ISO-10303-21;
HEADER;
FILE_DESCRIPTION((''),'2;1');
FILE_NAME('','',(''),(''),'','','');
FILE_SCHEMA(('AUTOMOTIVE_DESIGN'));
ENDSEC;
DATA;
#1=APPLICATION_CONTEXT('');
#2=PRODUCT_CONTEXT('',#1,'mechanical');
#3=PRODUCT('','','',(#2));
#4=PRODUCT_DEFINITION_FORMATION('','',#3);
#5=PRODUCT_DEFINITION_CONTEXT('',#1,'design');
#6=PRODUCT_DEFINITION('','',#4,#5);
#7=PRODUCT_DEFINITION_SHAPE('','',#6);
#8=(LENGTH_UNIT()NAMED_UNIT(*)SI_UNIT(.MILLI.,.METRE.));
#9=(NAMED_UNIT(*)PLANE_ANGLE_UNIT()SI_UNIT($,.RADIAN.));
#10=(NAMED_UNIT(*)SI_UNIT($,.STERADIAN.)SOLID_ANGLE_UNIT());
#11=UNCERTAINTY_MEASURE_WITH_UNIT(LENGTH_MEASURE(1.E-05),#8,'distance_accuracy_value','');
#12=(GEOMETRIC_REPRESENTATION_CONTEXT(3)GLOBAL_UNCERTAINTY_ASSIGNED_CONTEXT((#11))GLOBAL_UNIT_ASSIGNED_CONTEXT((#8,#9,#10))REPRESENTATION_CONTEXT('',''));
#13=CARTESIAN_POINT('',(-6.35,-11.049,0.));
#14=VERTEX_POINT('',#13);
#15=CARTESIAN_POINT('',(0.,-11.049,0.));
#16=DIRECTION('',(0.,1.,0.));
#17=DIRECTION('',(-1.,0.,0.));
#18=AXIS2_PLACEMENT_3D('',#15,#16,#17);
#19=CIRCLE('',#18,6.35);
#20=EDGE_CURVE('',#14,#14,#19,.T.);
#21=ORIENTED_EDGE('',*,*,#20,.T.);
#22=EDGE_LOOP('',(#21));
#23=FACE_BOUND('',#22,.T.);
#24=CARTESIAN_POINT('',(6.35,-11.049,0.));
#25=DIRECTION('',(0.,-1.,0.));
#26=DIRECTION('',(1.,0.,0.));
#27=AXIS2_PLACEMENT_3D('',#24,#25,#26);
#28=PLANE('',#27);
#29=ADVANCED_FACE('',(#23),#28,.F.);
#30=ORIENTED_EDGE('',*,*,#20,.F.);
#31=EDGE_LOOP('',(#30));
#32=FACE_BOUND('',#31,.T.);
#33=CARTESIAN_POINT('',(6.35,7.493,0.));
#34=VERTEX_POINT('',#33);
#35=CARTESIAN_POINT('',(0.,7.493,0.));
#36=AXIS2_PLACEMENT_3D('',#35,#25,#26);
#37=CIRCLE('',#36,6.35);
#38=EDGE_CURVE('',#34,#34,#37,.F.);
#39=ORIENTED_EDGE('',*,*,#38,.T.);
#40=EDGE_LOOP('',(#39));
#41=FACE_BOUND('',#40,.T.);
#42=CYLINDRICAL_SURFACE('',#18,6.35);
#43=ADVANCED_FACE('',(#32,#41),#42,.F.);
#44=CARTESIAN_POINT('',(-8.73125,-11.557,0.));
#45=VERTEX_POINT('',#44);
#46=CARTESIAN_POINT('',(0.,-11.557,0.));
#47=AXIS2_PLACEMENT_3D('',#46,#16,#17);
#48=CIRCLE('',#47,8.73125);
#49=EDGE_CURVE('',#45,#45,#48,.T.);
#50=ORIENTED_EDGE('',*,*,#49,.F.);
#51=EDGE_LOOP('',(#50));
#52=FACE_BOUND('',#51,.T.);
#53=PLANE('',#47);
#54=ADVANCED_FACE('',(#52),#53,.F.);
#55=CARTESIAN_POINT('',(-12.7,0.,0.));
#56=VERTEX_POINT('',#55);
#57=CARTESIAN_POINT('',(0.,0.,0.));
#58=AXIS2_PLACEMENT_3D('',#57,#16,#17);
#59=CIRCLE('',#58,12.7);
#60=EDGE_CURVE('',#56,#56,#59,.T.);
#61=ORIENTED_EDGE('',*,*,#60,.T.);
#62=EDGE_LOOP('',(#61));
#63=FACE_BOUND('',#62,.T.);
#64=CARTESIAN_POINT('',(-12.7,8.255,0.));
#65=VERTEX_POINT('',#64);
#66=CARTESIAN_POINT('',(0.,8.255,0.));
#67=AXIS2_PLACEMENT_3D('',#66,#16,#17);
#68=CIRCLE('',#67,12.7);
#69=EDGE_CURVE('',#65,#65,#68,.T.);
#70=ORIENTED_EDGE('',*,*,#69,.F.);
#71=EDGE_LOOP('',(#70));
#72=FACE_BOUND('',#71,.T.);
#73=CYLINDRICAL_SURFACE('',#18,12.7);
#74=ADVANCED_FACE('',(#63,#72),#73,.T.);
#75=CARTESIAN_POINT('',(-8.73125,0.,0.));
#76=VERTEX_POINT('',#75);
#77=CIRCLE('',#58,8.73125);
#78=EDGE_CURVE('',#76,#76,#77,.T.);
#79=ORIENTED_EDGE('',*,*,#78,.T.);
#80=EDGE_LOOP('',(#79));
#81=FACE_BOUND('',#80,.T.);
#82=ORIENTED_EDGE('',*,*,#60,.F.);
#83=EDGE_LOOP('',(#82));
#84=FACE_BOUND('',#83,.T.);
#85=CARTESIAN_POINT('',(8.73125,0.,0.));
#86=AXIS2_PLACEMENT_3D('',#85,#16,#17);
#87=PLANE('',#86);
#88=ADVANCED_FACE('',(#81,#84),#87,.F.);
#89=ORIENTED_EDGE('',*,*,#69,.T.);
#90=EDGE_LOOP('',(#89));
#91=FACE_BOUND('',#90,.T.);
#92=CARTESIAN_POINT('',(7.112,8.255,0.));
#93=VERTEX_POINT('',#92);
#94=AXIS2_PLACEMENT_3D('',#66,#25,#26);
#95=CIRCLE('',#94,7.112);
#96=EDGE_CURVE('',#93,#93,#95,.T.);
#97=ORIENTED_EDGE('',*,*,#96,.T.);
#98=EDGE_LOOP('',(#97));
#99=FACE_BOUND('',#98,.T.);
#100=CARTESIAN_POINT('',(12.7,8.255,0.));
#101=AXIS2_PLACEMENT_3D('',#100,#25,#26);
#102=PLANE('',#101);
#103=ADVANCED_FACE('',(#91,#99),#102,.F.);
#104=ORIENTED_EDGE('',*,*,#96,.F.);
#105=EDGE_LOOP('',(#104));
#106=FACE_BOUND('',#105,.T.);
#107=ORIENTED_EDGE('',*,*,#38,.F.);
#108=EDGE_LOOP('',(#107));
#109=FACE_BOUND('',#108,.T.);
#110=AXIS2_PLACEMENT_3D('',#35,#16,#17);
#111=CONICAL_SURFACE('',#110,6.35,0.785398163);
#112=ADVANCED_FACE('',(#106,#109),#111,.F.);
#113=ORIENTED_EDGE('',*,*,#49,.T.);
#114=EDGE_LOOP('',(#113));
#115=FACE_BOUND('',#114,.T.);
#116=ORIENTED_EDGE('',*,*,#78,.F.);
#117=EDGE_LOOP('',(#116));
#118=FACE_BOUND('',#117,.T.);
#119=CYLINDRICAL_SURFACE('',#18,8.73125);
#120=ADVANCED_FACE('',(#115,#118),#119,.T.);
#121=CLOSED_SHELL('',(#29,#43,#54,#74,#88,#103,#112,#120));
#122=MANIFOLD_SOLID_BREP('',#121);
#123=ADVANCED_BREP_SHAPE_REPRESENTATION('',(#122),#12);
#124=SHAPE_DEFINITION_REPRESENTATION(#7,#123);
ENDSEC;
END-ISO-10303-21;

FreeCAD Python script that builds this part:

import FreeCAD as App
import Part
import Sketcher

V = App.Vector
Q = App.Units.Quantity


def edges_at(feature, points):
    """Names of the edges that pass closest to the given points."""
    edges = feature.Shape.Edges
    near = lambda p: min(range(len(edges)), key=lambda i: edges[i].distToShape(Part.Vertex(*p))[0])
    return sorted({f"Edge{near(p) + 1}" for p in points})


def add_polygon(sketch, points):
    """Adds a closed chain of lines whose ends are joined by coincident constraints."""
    first, n = sketch.GeometryCount, len(points)
    for a, b in zip(points, points[1:] + points[:1]):
        sketch.addGeometry(Part.LineSegment(App.Vector(*a, 0), App.Vector(*b, 0)), False)
    for i in range(n):
        sketch.addConstraint(Sketcher.Constraint("Coincident", first + i, 2, first + (i + 1) % n, 1))

doc = App.newDocument("Part")
params = doc.addObject("Spreadsheet::Sheet", "Params")
for row, (alias, value) in enumerate([
    ("sketch1_width", "0.25 in"),
    ("sketch1_height", "0.76 in"),
    ("sketch1_height2", "0.02 in"),
    ("sketch1_width2", "0.15625 in"),
    ("sketch1_height3", "0.325 in"),
    ("revolution_angle", "360 deg"),
    ("chamfer_size", "0.03 in"),
], start=1):
    params.set(f"A{row}", alias)
    params.set(f"B{row}", "=" + value)
    params.setAlias(f"B{row}", alias)

body = doc.addObject("PartDesign::Body", "Body")

# Sketch on XY plane
sketch1 = body.newObject("Sketcher::SketchObject", "Sketch")
sketch1.AttachmentSupport = (doc.getObject("XY_Plane"), [""])
sketch1.MapMode = "FlatFace"
add_polygon(sketch1, [(8.7, 0), (12.7, 0), (12.7, 8.3), (6.3, 8.3), (6.3, -11), (0, -11), (0, -11.6), (8.7, -11.6)])  # lines 0-7
sketch1.addConstraint([
    Sketcher.Constraint("Horizontal", 0),
    Sketcher.Constraint("Vertical", 1),
    Sketcher.Constraint("Horizontal", 2),
    Sketcher.Constraint("Vertical", 3),
    Sketcher.Constraint("Horizontal", 4),
    Sketcher.Constraint("Vertical", 5),
    Sketcher.Constraint("Horizontal", 6),
    Sketcher.Constraint("Vertical", 7),
    Sketcher.Constraint("PointOnObject", 0, 2, -1),
    Sketcher.Constraint("PointOnObject", 4, 2, -2),
    Sketcher.Constraint("Equal", 2, 4),
    Sketcher.Constraint("DistanceX", 2, 2, 2, 1, Q("0.25 in")),
    Sketcher.Constraint("DistanceY", 3, 2, 3, 1, Q("0.76 in")),
    Sketcher.Constraint("DistanceY", 5, 2, 5, 1, Q("0.02 in")),
    Sketcher.Constraint("DistanceX", 0, 1, 0, 2, Q("0.15625 in")),
    Sketcher.Constraint("DistanceY", 1, 1, 1, 2, Q("0.325 in")),
])
sketch1.setExpression("Constraints[19]", "Params.sketch1_width")
sketch1.setExpression("Constraints[20]", "Params.sketch1_height")
sketch1.setExpression("Constraints[21]", "Params.sketch1_height2")
sketch1.setExpression("Constraints[22]", "Params.sketch1_width2")
sketch1.setExpression("Constraints[23]", "Params.sketch1_height3")
revolution = body.newObject("PartDesign::Revolution", "Revolution")
revolution.Profile = sketch1
revolution.ReferenceAxis = (sketch1, ["V_Axis"])
revolution.setExpression("Angle", "Params.revolution_angle")
doc.recompute()

chamfer = body.newObject("PartDesign::Chamfer", "Chamfer")
chamfer.Base = (revolution, edges_at(revolution, [(-6.35, 8.255, 0)]))
chamfer.setExpression("Size", "Params.chamfer_size")

doc.recompute()
